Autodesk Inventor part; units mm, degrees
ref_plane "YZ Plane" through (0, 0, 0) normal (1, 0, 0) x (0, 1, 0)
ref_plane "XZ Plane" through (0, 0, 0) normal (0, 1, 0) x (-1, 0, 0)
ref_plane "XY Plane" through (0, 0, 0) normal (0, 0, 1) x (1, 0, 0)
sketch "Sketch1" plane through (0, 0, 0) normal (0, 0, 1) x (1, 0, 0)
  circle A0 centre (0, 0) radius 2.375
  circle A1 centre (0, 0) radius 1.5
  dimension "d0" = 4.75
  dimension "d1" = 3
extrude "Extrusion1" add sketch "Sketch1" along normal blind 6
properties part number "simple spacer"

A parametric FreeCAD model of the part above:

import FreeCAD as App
import Part
import Sketcher
from FreeCAD import Vector
Q = App.Units.Quantity

doc = App.newDocument("Part")
params = doc.addObject("Spreadsheet::Sheet", "Params")
for row, (alias, value) in enumerate([
    ("sketch1_diameter", "3 mm"),
    ("sketch1_diameter2", "4.75 mm"),
    ("pad1_length", "6 mm"),
], start=1):
    params.set(f"A{row}", alias)
    params.set(f"B{row}", "=" + value)
    params.setAlias(f"B{row}", alias)

body = doc.addObject("PartDesign::Body", "Body")

# Sketch on XY plane
sketch1 = body.newObject("Sketcher::SketchObject", "Sketch")
sketch1.AttachmentSupport = (doc.getObject("XY_Plane"), [""])
sketch1.MapMode = "FlatFace"
sketch1.addGeometry(Part.Circle(Vector(0, 0, 0), Vector(0, 0, 1), 2.4), False)
sketch1.addGeometry(Part.Circle(Vector(0, 0, 0), Vector(0, 0, 1), 1.5), False)
sketch1.addConstraint(Sketcher.Constraint("Coincident", 0, 3, -1, 1))
sketch1.addConstraint(Sketcher.Constraint("Coincident", 1, 3, -1, 1))
sketch1.addConstraint(Sketcher.Constraint("Diameter", 1, Q("3 mm")))
sketch1.addConstraint(Sketcher.Constraint("Diameter", 0, Q("4.75 mm")))
sketch1.setExpression("Constraints[2]", "Params.sketch1_diameter")
sketch1.setExpression("Constraints[3]", "Params.sketch1_diameter2")
pad1 = body.newObject("PartDesign::Pad", "Pad")
pad1.Profile = sketch1
pad1.setExpression("Length", "Params.pad1_length")

doc.recompute()
